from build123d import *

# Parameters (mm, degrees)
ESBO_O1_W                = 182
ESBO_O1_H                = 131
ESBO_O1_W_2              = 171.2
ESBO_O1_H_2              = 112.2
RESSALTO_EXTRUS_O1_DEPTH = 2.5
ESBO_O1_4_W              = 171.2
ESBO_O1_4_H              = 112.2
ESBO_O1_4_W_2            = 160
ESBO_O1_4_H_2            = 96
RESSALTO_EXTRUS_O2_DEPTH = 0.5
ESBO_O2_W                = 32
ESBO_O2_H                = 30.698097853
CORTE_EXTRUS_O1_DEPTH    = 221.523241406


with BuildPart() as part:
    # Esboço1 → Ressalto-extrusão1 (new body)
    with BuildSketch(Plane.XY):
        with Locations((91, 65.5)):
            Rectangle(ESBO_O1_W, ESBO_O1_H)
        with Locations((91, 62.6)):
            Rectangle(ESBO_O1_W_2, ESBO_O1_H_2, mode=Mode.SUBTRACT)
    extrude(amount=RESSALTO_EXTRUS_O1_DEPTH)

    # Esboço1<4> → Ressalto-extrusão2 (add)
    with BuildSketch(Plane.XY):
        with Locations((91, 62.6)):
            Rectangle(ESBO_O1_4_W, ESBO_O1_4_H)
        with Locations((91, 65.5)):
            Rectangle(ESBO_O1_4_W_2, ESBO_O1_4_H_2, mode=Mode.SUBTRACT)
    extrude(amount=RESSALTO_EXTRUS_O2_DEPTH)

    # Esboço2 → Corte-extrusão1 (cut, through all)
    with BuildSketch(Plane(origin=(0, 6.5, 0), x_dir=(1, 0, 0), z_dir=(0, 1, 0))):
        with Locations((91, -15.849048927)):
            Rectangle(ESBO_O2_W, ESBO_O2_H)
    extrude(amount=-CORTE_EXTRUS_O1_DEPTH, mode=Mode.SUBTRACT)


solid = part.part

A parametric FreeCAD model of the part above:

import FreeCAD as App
import Part
import Sketcher
from FreeCAD import Vector

doc = App.newDocument("Part")
body = doc.addObject("PartDesign::Body", "Body")

sketch1 = doc.addObject("Sketcher::SketchObject", "Sketch")
body.addObject(sketch1)
sketch1.AttachmentSupport = (doc.XY_Plane, [""])
sketch1.MapMode = "FlatFace"
sketch1.addGeometry(Part.LineSegment(Vector(0, 131, 0), Vector(0, 0, 0)), False)
sketch1.addGeometry(Part.LineSegment(Vector(0, 0, 0), Vector(182, 0, 0)), False)
sketch1.addGeometry(Part.LineSegment(Vector(182, 0, 0), Vector(182, 131, 0)), False)
sketch1.addGeometry(Part.LineSegment(Vector(182, 131, 0), Vector(0, 131, 0)), False)
sketch1.addGeometry(Part.LineSegment(Vector(176.6, 6.5, 0), Vector(5.4, 6.5, 0)), False)
sketch1.addGeometry(Part.LineSegment(Vector(5.4, 6.5, 0), Vector(5.4, 118.7, 0)), False)
sketch1.addGeometry(Part.LineSegment(Vector(5.4, 118.7, 0), Vector(176.6, 118.7, 0)), False)
sketch1.addGeometry(Part.LineSegment(Vector(176.6, 118.7, 0), Vector(176.6, 6.5, 0)), False)
sketch1.addConstraint(Sketcher.Constraint("Coincident", 0, 2, 1, 1))
sketch1.addConstraint(Sketcher.Constraint("Coincident", 1, 2, 2, 1))
sketch1.addConstraint(Sketcher.Constraint("Coincident", 2, 2, 3, 1))
sketch1.addConstraint(Sketcher.Constraint("Coincident", 3, 2, 0, 1))
sketch1.addConstraint(Sketcher.Constraint("Coincident", 4, 2, 5, 1))
sketch1.addConstraint(Sketcher.Constraint("Coincident", 5, 2, 6, 1))
sketch1.addConstraint(Sketcher.Constraint("Coincident", 6, 2, 7, 1))
sketch1.addConstraint(Sketcher.Constraint("Coincident", 7, 2, 4, 1))
sketch1.addConstraint(Sketcher.Constraint("Vertical", 0))
sketch1.addConstraint(Sketcher.Constraint("Horizontal", 1))
sketch1.addConstraint(Sketcher.Constraint("Vertical", 2))
sketch1.addConstraint(Sketcher.Constraint("Horizontal", 3))
sketch1.addConstraint(Sketcher.Constraint("Horizontal", 4))
sketch1.addConstraint(Sketcher.Constraint("Vertical", 5))
sketch1.addConstraint(Sketcher.Constraint("Horizontal", 6))
sketch1.addConstraint(Sketcher.Constraint("Vertical", 7))
sketch1.addConstraint(Sketcher.Constraint("Coincident", 0, 2, -1, 1))
sketch1.addConstraint(Sketcher.Constraint("DistanceX", 1, 1, 1, 2, 182.0))
sketch1.addConstraint(Sketcher.Constraint("DistanceY", 0, 2, 0, 1, 131.0))
sketch1.addConstraint(Sketcher.Constraint("DistanceX", 4, 2, 4, 1, 171.2))
sketch1.addConstraint(Sketcher.Constraint("DistanceY", 5, 1, 5, 2, 112.2))
sketch1.addConstraint(Sketcher.Constraint("DistanceX", -1, 1, 4, 2, 5.4))
sketch1.addConstraint(Sketcher.Constraint("DistanceY", -1, 1, 4, 2, 6.5))
pad1 = doc.addObject("PartDesign::Pad", "Pad")
body.addObject(pad1)
pad1.Profile = sketch1
pad1.Length = 2.5

sketch2 = doc.addObject("Sketcher::SketchObject", "Sketch001")
body.addObject(sketch2)
sketch2.AttachmentSupport = (doc.XY_Plane, [""])
sketch2.MapMode = "FlatFace"
sketch2.addGeometry(Part.LineSegment(Vector(5.4, 118.7, 0), Vector(5.4, 6.5, 0)), False)
sketch2.addGeometry(Part.LineSegment(Vector(5.4, 6.5, 0), Vector(176.6, 6.5, 0)), False)
sketch2.addGeometry(Part.LineSegment(Vector(176.6, 6.5, 0), Vector(176.6, 118.7, 0)), False)
sketch2.addGeometry(Part.LineSegment(Vector(176.6, 118.7, 0), Vector(5.4, 118.7, 0)), False)
sketch2.addGeometry(Part.LineSegment(Vector(171, 17.5, 0), Vector(11, 17.5, 0)), False)
sketch2.addGeometry(Part.LineSegment(Vector(11, 17.5, 0), Vector(11, 113.5, 0)), False)
sketch2.addGeometry(Part.LineSegment(Vector(11, 113.5, 0), Vector(171, 113.5, 0)), False)
sketch2.addGeometry(Part.LineSegment(Vector(171, 113.5, 0), Vector(171, 17.5, 0)), False)
sketch2.addConstraint(Sketcher.Constraint("Coincident", 0, 2, 1, 1))
sketch2.addConstraint(Sketcher.Constraint("Coincident", 1, 2, 2, 1))
sketch2.addConstraint(Sketcher.Constraint("Coincident", 2, 2, 3, 1))
sketch2.addConstraint(Sketcher.Constraint("Coincident", 3, 2, 0, 1))
sketch2.addConstraint(Sketcher.Constraint("Coincident", 4, 2, 5, 1))
sketch2.addConstraint(Sketcher.Constraint("Coincident", 5, 2, 6, 1))
sketch2.addConstraint(Sketcher.Constraint("Coincident", 6, 2, 7, 1))
sketch2.addConstraint(Sketcher.Constraint("Coincident", 7, 2, 4, 1))
sketch2.addConstraint(Sketcher.Constraint("Vertical", 0))
sketch2.addConstraint(Sketcher.Constraint("Horizontal", 1))
sketch2.addConstraint(Sketcher.Constraint("Vertical", 2))
sketch2.addConstraint(Sketcher.Constraint("Horizontal", 3))
sketch2.addConstraint(Sketcher.Constraint("Horizontal", 4))
sketch2.addConstraint(Sketcher.Constraint("Vertical", 5))
sketch2.addConstraint(Sketcher.Constraint("Horizontal", 6))
sketch2.addConstraint(Sketcher.Constraint("Vertical", 7))
sketch2.addConstraint(Sketcher.Constraint("DistanceX", 4, 2, 4, 1, 160.0))
sketch2.addConstraint(Sketcher.Constraint("DistanceY", 5, 1, 5, 2, 96.0))
sketch2.addConstraint(Sketcher.Constraint("DistanceX", 1, 1, 1, 2, 171.2))
sketch2.addConstraint(Sketcher.Constraint("DistanceY", 0, 2, 0, 1, 112.2))
sketch2.addConstraint(Sketcher.Constraint("DistanceX", -1, 1, 4, 2, 11.0))
sketch2.addConstraint(Sketcher.Constraint("DistanceY", 0, 2, 4, 2, 11.0))
sketch2.addConstraint(Sketcher.Constraint("DistanceX", -1, 1, 0, 2, 5.4))
sketch2.addConstraint(Sketcher.Constraint("DistanceY", -1, 1, 0, 2, 6.5))
pad2 = doc.addObject("PartDesign::Pad", "Pad001")
body.addObject(pad2)
pad2.Profile = sketch2
pad2.Length = 0.5

sketch3 = doc.addObject("Sketcher::SketchObject", "Sketch002")
body.addObject(sketch3)
sketch3.AttachmentSupport = (doc.XZ_Plane, [""])
sketch3.MapMode = "FlatFace"
sketch3.AttachmentOffset = App.Placement(Vector(0, 0, -6.5), App.Rotation())
sketch3.addGeometry(Part.LineSegment(Vector(75, 0.5, 0), Vector(75, 31.198098, 0)), False)
sketch3.addGeometry(Part.LineSegment(Vector(75, 31.198098, 0), Vector(107, 31.198098, 0)), False)
sketch3.addGeometry(Part.LineSegment(Vector(107, 31.198098, 0), Vector(107, 0.5, 0)), False)
sketch3.addGeometry(Part.LineSegment(Vector(107, 0.5, 0), Vector(75, 0.5, 0)), False)
sketch3.addConstraint(Sketcher.Constraint("Coincident", 0, 2, 1, 1))
sketch3.addConstraint(Sketcher.Constraint("Coincident", 1, 2, 2, 1))
sketch3.addConstraint(Sketcher.Constraint("Coincident", 2, 2, 3, 1))
sketch3.addConstraint(Sketcher.Constraint("Coincident", 3, 2, 0, 1))
sketch3.addConstraint(Sketcher.Constraint("Vertical", 0))
sketch3.addConstraint(Sketcher.Constraint("Horizontal", 1))
sketch3.addConstraint(Sketcher.Constraint("Vertical", 2))
sketch3.addConstraint(Sketcher.Constraint("Horizontal", 3))
sketch3.addConstraint(Sketcher.Constraint("DistanceX", 1, 1, 1, 2, 32.0))
sketch3.addConstraint(Sketcher.Constraint("DistanceX", -1, 1, 0, 2, 75.0))
sketch3.addConstraint(Sketcher.Constraint("DistanceY", -1, 1, 2, 2, 0.5))
sketch3.addConstraint(Sketcher.Constraint("DistanceY", 0, 1, 0, 2, 30.698098))
pocket1 = doc.addObject("PartDesign::Pocket", "Pocket")
body.addObject(pocket1)
pocket1.Profile = sketch3
pocket1.Type = "ThroughAll"
pocket1.Reversed = True

doc.recompute()
